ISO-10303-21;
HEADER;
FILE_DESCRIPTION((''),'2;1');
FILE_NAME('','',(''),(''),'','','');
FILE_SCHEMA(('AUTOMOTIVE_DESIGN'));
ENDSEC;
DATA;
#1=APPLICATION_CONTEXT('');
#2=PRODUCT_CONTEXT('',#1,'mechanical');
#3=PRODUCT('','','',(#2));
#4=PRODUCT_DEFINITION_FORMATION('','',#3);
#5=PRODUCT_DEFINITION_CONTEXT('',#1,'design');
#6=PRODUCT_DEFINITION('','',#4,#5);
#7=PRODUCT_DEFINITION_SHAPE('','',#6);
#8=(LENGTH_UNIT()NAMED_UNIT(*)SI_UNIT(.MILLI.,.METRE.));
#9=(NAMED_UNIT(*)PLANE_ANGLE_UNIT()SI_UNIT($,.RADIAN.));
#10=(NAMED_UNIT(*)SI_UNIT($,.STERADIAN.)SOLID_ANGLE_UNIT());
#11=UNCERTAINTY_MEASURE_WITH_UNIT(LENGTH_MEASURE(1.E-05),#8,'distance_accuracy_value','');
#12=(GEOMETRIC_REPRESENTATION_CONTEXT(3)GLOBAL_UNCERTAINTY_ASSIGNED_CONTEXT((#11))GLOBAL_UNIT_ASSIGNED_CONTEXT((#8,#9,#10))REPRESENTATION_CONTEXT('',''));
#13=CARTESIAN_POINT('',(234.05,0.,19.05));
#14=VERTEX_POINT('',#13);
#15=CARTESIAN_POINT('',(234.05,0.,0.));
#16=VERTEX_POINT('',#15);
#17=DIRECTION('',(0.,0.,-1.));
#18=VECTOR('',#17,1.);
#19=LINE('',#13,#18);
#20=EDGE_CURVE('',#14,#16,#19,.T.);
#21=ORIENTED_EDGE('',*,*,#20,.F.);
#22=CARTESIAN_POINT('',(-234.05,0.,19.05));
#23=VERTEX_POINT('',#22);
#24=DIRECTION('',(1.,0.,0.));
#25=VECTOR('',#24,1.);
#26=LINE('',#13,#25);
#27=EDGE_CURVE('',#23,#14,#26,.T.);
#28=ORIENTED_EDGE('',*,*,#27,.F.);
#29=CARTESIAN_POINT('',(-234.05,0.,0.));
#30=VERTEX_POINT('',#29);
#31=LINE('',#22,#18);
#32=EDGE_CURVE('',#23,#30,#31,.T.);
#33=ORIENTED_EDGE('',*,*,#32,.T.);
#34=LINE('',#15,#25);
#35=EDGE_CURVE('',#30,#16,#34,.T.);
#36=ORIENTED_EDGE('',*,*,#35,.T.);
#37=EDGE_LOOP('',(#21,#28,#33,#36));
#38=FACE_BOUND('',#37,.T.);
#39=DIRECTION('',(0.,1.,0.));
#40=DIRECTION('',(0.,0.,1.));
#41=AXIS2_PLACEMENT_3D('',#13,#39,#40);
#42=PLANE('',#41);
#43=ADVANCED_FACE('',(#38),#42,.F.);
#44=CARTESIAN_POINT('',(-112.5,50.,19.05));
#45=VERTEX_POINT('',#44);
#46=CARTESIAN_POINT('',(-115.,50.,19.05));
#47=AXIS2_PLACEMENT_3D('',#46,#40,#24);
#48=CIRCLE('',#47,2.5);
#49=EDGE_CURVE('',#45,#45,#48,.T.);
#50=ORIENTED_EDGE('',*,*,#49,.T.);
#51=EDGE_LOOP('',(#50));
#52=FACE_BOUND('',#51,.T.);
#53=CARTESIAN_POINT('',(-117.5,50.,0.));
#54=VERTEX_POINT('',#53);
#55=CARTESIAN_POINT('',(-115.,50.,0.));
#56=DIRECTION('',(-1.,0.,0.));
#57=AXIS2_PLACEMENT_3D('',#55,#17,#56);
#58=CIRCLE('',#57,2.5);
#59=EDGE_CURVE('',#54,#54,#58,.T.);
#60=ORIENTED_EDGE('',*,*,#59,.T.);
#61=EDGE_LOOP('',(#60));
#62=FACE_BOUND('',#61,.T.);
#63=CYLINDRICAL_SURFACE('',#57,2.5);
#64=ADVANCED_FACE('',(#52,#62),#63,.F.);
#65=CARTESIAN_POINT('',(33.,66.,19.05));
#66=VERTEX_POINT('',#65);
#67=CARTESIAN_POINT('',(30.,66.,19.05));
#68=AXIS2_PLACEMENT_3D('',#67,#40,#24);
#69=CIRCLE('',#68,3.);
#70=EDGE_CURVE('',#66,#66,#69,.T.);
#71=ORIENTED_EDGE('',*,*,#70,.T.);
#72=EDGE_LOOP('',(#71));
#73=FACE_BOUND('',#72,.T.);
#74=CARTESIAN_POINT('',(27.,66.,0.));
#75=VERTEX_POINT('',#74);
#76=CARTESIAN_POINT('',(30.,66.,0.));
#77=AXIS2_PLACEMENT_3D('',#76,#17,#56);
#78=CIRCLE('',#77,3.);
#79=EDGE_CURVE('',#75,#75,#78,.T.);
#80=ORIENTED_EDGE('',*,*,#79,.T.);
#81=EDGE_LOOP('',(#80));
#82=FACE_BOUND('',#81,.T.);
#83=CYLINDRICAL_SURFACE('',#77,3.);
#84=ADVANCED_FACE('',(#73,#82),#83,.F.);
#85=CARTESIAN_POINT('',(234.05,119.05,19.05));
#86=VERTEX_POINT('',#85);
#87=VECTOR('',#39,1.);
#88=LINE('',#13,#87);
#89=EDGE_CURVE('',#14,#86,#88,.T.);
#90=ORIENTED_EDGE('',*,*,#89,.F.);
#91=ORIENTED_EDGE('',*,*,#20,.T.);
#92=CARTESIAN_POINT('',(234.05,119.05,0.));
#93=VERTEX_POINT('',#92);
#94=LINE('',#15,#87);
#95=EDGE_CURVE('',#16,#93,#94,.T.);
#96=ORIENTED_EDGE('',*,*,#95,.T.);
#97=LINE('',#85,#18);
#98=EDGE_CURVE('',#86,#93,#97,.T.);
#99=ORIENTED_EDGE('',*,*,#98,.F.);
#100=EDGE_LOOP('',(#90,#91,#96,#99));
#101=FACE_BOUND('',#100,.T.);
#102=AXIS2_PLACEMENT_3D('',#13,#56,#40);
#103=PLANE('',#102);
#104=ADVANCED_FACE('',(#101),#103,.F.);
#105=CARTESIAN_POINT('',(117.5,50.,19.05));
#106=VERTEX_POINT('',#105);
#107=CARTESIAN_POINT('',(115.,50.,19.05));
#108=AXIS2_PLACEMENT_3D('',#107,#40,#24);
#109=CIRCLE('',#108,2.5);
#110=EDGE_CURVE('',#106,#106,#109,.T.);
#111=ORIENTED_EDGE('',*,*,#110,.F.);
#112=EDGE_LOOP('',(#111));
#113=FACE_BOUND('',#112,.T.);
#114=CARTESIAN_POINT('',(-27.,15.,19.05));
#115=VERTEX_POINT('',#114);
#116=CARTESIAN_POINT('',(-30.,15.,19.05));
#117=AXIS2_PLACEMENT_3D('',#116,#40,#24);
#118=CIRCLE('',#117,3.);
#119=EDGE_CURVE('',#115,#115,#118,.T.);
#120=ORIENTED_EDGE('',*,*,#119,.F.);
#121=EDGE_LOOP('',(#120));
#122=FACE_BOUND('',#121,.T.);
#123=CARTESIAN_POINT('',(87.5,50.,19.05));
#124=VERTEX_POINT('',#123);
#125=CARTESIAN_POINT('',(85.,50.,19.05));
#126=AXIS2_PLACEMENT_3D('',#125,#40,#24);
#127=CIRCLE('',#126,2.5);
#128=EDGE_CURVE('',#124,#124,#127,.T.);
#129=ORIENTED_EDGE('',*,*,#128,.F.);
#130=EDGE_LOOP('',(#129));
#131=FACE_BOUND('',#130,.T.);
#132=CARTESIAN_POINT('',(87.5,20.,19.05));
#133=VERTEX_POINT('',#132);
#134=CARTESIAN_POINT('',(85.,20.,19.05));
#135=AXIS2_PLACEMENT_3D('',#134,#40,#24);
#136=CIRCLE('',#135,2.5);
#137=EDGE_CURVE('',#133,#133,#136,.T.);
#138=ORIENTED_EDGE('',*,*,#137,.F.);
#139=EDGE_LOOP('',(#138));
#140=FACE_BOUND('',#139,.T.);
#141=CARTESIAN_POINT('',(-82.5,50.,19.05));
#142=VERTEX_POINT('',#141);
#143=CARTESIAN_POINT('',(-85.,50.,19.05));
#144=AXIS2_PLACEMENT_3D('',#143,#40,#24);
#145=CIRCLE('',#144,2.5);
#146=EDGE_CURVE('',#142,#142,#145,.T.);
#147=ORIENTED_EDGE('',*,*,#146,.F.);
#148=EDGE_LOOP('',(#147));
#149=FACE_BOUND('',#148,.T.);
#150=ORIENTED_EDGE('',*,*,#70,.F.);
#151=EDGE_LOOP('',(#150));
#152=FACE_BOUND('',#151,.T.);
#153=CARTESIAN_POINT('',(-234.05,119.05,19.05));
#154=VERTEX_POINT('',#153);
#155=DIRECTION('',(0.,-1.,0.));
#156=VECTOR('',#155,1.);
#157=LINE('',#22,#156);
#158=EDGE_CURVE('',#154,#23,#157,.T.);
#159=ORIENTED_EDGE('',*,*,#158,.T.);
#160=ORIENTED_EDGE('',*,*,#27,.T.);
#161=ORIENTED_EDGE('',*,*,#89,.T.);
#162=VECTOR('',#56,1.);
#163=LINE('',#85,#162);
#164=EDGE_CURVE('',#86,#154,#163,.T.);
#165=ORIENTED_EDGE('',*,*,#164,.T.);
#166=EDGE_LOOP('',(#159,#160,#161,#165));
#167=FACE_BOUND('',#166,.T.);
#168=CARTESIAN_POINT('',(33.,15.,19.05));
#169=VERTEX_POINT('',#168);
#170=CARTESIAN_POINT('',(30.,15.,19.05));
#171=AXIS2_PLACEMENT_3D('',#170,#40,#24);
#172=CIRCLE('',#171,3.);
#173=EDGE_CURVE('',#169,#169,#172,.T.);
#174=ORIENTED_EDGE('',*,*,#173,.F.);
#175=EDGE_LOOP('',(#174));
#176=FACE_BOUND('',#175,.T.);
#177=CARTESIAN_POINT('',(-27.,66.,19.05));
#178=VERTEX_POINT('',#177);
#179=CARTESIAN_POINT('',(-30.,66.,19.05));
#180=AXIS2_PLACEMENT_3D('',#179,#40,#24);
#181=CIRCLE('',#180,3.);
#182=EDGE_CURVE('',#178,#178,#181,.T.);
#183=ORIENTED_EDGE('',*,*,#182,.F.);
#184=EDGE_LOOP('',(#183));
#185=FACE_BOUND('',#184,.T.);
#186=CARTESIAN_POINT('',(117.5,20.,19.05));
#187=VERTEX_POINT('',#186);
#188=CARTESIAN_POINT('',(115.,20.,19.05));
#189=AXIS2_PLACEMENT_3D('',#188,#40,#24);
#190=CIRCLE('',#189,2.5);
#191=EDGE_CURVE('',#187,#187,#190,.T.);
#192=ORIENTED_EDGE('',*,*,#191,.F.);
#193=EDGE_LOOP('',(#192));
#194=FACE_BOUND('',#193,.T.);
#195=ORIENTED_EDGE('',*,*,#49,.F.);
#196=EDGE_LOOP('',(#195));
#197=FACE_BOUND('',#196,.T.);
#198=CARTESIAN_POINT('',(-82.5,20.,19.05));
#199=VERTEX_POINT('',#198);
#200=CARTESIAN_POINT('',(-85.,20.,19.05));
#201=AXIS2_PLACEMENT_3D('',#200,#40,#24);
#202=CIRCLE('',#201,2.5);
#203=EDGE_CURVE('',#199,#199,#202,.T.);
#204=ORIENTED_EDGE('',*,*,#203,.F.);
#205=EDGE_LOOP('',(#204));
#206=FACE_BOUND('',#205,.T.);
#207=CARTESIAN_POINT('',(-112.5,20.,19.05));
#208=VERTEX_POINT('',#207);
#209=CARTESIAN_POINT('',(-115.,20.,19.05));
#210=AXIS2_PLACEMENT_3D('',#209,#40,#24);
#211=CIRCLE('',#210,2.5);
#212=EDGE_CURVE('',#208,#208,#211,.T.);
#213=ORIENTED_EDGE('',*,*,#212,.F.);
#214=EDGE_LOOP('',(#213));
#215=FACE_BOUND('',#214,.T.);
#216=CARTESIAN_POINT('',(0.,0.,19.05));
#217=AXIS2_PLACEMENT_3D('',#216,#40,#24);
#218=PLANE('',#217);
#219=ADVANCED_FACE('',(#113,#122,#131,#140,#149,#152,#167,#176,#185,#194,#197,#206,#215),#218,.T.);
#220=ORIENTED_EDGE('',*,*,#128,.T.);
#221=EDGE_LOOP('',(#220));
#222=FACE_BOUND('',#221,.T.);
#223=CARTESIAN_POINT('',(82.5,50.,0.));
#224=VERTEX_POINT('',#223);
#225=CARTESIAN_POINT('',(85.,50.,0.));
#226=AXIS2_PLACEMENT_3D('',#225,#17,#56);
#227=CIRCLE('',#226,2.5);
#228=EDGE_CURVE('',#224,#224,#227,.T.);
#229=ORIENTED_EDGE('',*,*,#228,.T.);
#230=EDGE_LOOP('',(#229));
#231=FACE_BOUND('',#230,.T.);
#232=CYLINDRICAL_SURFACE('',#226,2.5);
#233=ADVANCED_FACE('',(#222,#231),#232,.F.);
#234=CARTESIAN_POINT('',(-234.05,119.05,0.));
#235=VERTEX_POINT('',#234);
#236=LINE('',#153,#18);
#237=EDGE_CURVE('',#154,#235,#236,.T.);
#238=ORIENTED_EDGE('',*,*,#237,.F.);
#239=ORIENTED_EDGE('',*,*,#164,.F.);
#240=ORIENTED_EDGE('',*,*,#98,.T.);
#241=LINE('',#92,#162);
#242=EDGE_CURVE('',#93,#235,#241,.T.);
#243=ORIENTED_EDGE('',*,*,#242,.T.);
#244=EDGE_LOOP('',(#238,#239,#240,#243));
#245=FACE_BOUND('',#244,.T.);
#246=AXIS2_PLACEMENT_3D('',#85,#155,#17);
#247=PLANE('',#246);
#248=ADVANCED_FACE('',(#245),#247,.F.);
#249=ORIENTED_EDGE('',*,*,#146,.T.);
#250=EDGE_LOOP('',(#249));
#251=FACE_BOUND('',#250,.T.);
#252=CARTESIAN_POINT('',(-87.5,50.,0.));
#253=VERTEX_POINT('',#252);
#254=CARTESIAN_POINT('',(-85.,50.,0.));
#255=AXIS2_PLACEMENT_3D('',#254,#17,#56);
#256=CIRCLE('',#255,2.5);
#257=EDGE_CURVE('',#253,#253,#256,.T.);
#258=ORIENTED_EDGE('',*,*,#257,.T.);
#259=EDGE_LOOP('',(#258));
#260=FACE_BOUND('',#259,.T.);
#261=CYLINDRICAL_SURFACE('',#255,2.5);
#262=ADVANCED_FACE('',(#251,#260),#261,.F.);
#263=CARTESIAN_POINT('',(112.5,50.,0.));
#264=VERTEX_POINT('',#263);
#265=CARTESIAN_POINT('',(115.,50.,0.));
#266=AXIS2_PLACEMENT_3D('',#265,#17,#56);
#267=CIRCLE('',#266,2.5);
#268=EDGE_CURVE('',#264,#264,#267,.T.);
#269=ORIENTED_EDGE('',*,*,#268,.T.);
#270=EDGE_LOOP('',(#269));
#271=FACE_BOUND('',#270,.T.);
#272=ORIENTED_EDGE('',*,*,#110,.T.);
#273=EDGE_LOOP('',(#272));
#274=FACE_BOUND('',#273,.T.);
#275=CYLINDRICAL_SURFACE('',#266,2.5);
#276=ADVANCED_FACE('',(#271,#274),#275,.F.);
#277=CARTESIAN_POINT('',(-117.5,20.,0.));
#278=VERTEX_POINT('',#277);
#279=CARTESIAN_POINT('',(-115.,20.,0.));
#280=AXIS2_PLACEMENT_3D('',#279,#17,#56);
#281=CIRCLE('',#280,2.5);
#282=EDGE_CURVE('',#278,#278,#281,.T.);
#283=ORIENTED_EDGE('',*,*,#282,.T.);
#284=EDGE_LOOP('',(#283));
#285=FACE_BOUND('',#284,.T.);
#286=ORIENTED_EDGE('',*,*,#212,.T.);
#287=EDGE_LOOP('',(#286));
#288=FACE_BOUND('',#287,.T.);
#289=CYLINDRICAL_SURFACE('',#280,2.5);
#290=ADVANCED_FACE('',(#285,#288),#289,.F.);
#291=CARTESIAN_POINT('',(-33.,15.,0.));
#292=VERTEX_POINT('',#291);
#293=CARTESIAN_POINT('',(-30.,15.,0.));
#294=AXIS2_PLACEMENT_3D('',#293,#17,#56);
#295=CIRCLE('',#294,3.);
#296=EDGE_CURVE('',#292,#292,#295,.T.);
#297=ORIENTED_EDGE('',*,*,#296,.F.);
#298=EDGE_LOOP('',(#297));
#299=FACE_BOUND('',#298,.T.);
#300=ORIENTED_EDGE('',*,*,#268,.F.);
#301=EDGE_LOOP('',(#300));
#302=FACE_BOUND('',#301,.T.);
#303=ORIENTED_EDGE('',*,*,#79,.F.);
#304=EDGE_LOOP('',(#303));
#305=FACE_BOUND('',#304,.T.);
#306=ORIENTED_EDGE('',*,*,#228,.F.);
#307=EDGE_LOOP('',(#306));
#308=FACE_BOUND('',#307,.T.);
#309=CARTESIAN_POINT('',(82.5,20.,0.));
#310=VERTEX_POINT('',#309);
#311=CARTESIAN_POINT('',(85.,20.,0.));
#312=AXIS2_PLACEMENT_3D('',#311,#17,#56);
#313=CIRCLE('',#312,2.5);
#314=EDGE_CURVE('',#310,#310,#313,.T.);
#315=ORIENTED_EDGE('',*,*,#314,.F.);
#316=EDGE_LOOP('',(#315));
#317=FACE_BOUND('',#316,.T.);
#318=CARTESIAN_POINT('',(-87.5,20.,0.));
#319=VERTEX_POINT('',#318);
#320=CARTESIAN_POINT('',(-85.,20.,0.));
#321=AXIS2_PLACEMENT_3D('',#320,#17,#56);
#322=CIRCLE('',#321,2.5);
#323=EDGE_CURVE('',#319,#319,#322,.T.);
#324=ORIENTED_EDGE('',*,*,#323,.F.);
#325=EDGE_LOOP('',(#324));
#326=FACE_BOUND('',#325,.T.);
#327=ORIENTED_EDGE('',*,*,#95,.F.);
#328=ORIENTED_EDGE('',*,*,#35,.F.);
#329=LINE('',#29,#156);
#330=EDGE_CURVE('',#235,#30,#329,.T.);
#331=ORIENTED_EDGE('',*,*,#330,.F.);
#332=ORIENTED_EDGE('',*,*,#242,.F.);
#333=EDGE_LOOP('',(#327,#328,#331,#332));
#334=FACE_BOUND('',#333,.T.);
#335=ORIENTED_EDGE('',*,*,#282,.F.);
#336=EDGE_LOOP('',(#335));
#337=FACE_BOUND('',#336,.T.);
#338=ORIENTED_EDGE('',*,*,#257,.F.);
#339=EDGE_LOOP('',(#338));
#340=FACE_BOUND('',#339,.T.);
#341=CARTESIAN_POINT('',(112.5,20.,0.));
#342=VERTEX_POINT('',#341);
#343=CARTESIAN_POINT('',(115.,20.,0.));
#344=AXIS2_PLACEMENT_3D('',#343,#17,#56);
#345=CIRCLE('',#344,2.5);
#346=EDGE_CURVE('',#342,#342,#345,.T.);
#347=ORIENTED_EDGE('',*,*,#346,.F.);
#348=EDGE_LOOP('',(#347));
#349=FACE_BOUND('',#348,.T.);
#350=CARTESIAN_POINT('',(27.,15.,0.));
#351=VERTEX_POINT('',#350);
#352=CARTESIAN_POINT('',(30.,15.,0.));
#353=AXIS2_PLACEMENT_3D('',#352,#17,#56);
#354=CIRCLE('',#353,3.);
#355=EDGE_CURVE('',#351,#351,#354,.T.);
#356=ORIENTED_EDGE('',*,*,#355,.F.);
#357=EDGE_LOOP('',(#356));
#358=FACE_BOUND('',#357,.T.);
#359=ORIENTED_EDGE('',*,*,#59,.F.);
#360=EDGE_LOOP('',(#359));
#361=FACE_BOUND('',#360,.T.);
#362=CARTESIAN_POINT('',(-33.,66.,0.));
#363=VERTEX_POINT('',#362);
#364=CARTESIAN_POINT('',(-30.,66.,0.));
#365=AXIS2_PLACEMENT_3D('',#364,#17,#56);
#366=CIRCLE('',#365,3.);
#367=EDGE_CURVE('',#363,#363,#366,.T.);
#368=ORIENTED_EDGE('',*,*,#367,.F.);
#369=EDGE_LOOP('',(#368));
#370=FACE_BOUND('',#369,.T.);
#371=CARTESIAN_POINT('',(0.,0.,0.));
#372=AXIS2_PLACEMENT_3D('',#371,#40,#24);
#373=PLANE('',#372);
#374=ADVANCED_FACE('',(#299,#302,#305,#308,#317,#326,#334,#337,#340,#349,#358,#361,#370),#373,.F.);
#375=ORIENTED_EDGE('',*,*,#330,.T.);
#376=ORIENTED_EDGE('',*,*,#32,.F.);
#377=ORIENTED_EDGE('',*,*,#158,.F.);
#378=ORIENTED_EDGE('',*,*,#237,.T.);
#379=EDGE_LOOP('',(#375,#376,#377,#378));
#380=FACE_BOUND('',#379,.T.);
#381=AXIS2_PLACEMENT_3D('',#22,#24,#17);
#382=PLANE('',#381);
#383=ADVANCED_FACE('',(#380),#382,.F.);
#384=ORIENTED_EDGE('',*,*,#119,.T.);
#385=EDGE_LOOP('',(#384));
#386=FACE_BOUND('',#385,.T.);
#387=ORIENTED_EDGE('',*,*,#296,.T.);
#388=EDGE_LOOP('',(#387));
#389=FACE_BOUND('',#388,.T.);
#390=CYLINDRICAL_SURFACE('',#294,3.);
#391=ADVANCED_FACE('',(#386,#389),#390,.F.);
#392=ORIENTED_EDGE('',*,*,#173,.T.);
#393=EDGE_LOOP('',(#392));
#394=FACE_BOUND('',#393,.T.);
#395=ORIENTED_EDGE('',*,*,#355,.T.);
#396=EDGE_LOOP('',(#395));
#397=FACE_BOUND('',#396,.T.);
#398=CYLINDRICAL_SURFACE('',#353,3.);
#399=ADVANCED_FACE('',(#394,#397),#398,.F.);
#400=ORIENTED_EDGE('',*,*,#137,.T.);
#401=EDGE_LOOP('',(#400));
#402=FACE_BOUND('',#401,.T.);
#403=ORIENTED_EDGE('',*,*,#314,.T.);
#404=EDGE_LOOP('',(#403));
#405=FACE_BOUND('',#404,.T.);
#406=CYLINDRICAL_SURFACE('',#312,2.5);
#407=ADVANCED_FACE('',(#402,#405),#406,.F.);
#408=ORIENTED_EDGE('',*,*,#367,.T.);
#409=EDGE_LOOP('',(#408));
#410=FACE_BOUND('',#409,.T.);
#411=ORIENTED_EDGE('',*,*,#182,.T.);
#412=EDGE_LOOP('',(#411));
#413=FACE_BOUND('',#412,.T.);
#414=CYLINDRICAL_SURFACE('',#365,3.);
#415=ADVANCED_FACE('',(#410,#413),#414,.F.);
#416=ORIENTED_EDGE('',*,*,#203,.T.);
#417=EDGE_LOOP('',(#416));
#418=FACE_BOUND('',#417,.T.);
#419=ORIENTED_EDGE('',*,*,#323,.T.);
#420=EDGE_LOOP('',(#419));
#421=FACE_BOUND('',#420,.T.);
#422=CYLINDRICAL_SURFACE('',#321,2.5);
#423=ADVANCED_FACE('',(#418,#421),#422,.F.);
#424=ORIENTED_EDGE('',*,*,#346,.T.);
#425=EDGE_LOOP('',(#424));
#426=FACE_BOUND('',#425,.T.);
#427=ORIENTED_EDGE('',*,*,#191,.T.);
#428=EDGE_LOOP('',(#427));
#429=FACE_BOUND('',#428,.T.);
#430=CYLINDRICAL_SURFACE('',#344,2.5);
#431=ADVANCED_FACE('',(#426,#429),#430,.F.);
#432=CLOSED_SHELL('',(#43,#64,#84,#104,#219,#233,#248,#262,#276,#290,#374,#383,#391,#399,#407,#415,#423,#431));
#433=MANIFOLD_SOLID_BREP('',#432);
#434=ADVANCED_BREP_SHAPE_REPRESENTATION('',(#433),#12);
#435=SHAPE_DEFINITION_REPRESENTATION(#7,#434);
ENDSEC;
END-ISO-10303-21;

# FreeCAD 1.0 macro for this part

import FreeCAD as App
import Part
import Sketcher
from FreeCAD import Vector
Q = App.Units.Quantity


def add_polygon(sketch, points):
    """Adds a closed chain of lines whose ends are joined by coincident constraints."""
    first, n = sketch.GeometryCount, len(points)
    for a, b in zip(points, points[1:] + points[:1]):
        sketch.addGeometry(Part.LineSegment(App.Vector(*a, 0), App.Vector(*b, 0)), False)
    for i in range(n):
        sketch.addConstraint(Sketcher.Constraint("Coincident", first + i, 2, first + (i + 1) % n, 1))

doc = App.newDocument("Part")
body = doc.addObject("PartDesign::Body", "Body")

# Sketch on XY plane
sketch1 = body.newObject("Sketcher::SketchObject", "Sketch")
sketch1.AttachmentSupport = (doc.getObject("XY_Plane"), [""])
sketch1.MapMode = "FlatFace"
add_polygon(sketch1, [(-234, 119), (-234, 0), (234, 0), (234, 119)])  # lines 0-3
sketch1.addConstraint([
    Sketcher.Constraint("Vertical", 0),
    Sketcher.Constraint("Horizontal", 1),
    Sketcher.Constraint("Vertical", 2),
    Sketcher.Constraint("Horizontal", 3),
    Sketcher.Constraint("Symmetric", 0, 2, 1, 2, -1, 1),
    Sketcher.Constraint("DistanceX", 1, 1, 1, 2, Q("468.1 mm")),
    Sketcher.Constraint("DistanceY", 0, 2, 0, 1, Q("119.05 mm")),
])
pad1 = body.newObject("PartDesign::Pad", "Pad")
pad1.Profile = sketch1
pad1.Length = 19.05

# Sketch on XY plane
sketch2 = body.newObject("Sketcher::SketchObject", "Sketch001")
sketch2.AttachmentSupport = (doc.getObject("XY_Plane"), [""])
sketch2.MapMode = "FlatFace"
sketch2.addGeometry([
    Part.Circle(Vector(115, 20, 0), Vector(0, 0, 1), 2.5),  # 0
    Part.Circle(Vector(115, 50, 0), Vector(0, 0, 1), 2.5),  # 1
    Part.Circle(Vector(85, 50, 0), Vector(0, 0, 1), 2.5),  # 2
    Part.Circle(Vector(85, 20, 0), Vector(0, 0, 1), 2.5),  # 3
    Part.Circle(Vector(-85, 20, 0), Vector(0, 0, 1), 2.5),  # 4
    Part.Circle(Vector(-85, 50, 0), Vector(0, 0, 1), 2.5),  # 5
    Part.Circle(Vector(-115, 50, 0), Vector(0, 0, 1), 2.5),  # 6
    Part.Circle(Vector(-115, 20, 0), Vector(0, 0, 1), 2.5),  # 7
], False)
sketch2.addConstraint([
    Sketcher.Constraint("Equal", 0, 1),
    Sketcher.Constraint("Equal", 1, 2),
    Sketcher.Constraint("Equal", 2, 3),
    Sketcher.Constraint("Equal", 3, 4),
    Sketcher.Constraint("Equal", 4, 5),
    Sketcher.Constraint("Equal", 5, 6),
    Sketcher.Constraint("Equal", 6, 7),
    Sketcher.Constraint("Symmetric", 3, 3, 4, 3, -2),
    Sketcher.Constraint("Symmetric", 2, 3, 5, 3, -2),
    Sketcher.Constraint("Symmetric", 1, 3, 6, 3, -2),
    Sketcher.Constraint("Symmetric", 0, 3, 7, 3, -2),
    Sketcher.Constraint("Horizontal", 1, 3, 2, 3),
    Sketcher.Constraint("Horizontal", 0, 3, 3, 3),
    Sketcher.Constraint("Vertical", 0, 3, 1, 3),
    Sketcher.Constraint("Vertical", 2, 3, 3, 3),
    Sketcher.Constraint("Diameter", 0, Q("5 mm")),
    Sketcher.Constraint("DistanceX", -1, 1, 0, 3, Q("115 mm")),
    Sketcher.Constraint("DistanceY", -1, 1, 0, 3, Q("20 mm")),
    Sketcher.Constraint("DistanceY", -1, 1, 1, 3, Q("50 mm")),
    Sketcher.Constraint("DistanceX", -1, 1, 2, 3, Q("85 mm")),
])
doc.recompute()
hole = body.newObject("PartDesign::Hole", "Hole")
hole.Profile = sketch2
hole.ThreadType = "None"
hole.Diameter = 5
hole.DepthType = "Dimension"
hole.Depth = 28.497848
hole.DrillPoint = "Angled"
hole.DrillPointAngle = 118
hole.Reversed = True

# Sketch on XY plane
sketch3 = body.newObject("Sketcher::SketchObject", "Sketch002")
sketch3.AttachmentSupport = (doc.getObject("XY_Plane"), [""])
sketch3.MapMode = "FlatFace"
sketch3.addGeometry([
    Part.Circle(Vector(-30, 15, 0), Vector(0, 0, 1), 3),
    Part.Circle(Vector(-30, 66, 0), Vector(0, 0, 1), 3),
    Part.Circle(Vector(30, 15, 0), Vector(0, 0, 1), 3),
    Part.Circle(Vector(30, 66, 0), Vector(0, 0, 1), 3),
], False)
sketch3.addConstraint([
    Sketcher.Constraint("Equal", 0, 1),
    Sketcher.Constraint("Equal", 1, 2),
    Sketcher.Constraint("Equal", 2, 3),
    Sketcher.Constraint("Symmetric", 0, 3, 2, 3, -2),
    Sketcher.Constraint("Symmetric", 1, 3, 3, 3, -2),
    Sketcher.Constraint("Vertical", 0, 3, 1, 3),
    Sketcher.Constraint("Diameter", 0, Q("6 mm")),
    Sketcher.Constraint("DistanceX", 0, 3, -1, 1, Q("30 mm")),
    Sketcher.Constraint("DistanceY", -1, 1, 0, 3, Q("15 mm")),
    Sketcher.Constraint("DistanceY", -1, 1, 1, 3, Q("66 mm")),
])
doc.recompute()
hole2 = body.newObject("PartDesign::Hole", "Hole001")
hole2.Profile = sketch3
hole2.ThreadType = "None"
hole2.Diameter = 6
hole2.DepthType = "Dimension"
hole2.Depth = 28.197418
hole2.DrillPoint = "Angled"
hole2.DrillPointAngle = 118
hole2.Reversed = True

doc.recompute()
